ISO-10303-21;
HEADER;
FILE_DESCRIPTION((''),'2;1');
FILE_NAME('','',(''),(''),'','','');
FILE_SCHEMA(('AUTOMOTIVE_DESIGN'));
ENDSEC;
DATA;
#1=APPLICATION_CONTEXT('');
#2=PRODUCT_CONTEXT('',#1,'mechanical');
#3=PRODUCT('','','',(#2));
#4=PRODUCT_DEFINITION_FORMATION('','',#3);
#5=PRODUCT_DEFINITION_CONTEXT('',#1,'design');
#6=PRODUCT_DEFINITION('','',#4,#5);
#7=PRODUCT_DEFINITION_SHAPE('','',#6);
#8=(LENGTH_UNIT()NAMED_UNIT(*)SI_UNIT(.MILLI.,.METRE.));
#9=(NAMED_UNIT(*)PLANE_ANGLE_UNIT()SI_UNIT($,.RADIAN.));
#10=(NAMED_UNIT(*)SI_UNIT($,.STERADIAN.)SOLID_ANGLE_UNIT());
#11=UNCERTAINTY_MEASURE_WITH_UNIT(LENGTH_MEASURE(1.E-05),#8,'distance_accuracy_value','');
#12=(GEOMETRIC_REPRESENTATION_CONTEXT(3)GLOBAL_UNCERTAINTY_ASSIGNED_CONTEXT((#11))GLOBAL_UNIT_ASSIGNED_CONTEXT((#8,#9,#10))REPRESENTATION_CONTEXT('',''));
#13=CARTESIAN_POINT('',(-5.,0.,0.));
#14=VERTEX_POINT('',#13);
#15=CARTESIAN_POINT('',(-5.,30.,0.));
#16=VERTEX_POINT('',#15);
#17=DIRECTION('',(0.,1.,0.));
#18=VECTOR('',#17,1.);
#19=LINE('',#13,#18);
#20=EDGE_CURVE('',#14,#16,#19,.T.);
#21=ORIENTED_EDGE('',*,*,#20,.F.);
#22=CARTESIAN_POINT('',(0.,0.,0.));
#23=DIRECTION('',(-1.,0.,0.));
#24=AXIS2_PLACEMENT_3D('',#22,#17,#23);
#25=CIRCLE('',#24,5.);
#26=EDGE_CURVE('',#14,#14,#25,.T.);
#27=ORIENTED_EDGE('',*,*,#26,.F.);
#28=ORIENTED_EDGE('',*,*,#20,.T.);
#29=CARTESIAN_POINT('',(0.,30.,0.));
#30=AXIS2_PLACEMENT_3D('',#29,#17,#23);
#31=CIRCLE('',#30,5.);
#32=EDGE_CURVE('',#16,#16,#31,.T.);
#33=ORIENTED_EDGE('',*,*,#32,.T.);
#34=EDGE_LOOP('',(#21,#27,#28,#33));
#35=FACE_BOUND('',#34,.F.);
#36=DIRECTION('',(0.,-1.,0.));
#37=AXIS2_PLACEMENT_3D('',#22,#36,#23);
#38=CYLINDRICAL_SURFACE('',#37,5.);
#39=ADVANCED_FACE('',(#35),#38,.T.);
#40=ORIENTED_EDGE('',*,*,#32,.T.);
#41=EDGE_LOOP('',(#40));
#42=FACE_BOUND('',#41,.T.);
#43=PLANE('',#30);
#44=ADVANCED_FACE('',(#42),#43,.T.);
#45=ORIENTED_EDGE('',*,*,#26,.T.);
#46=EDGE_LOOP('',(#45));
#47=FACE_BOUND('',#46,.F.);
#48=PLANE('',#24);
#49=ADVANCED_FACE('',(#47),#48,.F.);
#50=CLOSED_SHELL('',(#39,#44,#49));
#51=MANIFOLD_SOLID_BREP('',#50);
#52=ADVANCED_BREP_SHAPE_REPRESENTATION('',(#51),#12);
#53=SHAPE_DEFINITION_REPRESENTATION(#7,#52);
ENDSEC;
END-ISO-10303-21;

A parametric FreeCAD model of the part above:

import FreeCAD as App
import Part
import Sketcher
from FreeCAD import Vector
Q = App.Units.Quantity

doc = App.newDocument("Part")
body = doc.addObject("PartDesign::Body", "Body")

# Sketch on XZ plane
sketch1 = body.newObject("Sketcher::SketchObject", "Sketch")
sketch1.AttachmentSupport = (doc.getObject("XZ_Plane"), [""])
sketch1.MapMode = "FlatFace"
sketch1.addGeometry(Part.Circle(Vector(0, 0, 0), Vector(0, 0, 1), 5), False)
sketch1.addConstraint(Sketcher.Constraint("Coincident", 0, 3, -1, 1))
sketch1.addConstraint(Sketcher.Constraint("Diameter", 0, Q("10 mm")))
pad1 = body.newObject("PartDesign::Pad", "Pad")
pad1.Profile = sketch1
pad1.Length = 30
pad1.Reversed = True

doc.recompute()
